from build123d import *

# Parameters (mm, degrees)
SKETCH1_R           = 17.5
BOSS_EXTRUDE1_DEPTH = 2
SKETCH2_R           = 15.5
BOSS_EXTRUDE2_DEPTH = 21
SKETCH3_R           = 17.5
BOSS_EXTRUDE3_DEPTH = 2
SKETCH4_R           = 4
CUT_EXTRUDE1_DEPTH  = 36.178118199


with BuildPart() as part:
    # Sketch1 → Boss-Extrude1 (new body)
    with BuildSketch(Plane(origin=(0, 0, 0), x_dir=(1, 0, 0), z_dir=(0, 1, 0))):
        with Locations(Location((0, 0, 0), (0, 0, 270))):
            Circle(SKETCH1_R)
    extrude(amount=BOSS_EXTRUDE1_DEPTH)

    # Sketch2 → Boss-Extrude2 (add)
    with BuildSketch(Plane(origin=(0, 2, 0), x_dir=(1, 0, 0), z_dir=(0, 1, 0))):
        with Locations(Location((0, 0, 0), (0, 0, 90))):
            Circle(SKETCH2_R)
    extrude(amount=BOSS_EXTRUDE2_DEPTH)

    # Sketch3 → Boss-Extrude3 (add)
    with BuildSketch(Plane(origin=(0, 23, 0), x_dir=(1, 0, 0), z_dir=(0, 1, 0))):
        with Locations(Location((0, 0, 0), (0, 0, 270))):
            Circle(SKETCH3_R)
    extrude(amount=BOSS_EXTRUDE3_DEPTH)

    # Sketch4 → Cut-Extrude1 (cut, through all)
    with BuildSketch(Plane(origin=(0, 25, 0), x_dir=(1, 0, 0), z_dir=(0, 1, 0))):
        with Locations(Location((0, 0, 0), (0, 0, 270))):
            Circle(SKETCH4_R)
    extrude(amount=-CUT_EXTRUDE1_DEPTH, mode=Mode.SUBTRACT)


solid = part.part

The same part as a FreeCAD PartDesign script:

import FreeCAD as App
import Part
import Sketcher

V = App.Vector

doc = App.newDocument("Part")
body = doc.addObject("PartDesign::Body", "Body")

# Sketch on XZ plane
sketch1 = body.newObject("Sketcher::SketchObject", "Sketch")
sketch1.AttachmentSupport = (doc.getObject("XZ_Plane"), [""])
sketch1.MapMode = "FlatFace"
sketch1.addGeometry(Part.Circle(V(0, 0, 0), V(0, 0, 1), 18), False)
sketch1.addConstraint([
    Sketcher.Constraint("Coincident", 0, 3, -1, 1),
    Sketcher.Constraint("Diameter", 0, 35.0),
])
pad1 = body.newObject("PartDesign::Pad", "Pad")
pad1.Profile = sketch1
pad1.Length = 2
pad1.Reversed = True

# Sketch on XZ plane
sketch2 = body.newObject("Sketcher::SketchObject", "Sketch001")
sketch2.AttachmentSupport = (doc.getObject("XZ_Plane"), [""])
sketch2.MapMode = "FlatFace"
sketch2.AttachmentOffset = App.Placement(V(0, 0, -2), App.Rotation())
sketch2.addGeometry(Part.Circle(V(0, 0, 0), V(0, 0, 1), 16), False)
sketch2.addConstraint([
    Sketcher.Constraint("Coincident", 0, 3, -1, 1),
    Sketcher.Constraint("Diameter", 0, 31.0),
])
pad2 = body.newObject("PartDesign::Pad", "Pad001")
pad2.Profile = sketch2
pad2.Length = 21
pad2.Reversed = True

# Sketch on XZ plane
sketch3 = body.newObject("Sketcher::SketchObject", "Sketch002")
sketch3.AttachmentSupport = (doc.getObject("XZ_Plane"), [""])
sketch3.MapMode = "FlatFace"
sketch3.AttachmentOffset = App.Placement(V(0, 0, -23), App.Rotation())
sketch3.addGeometry(Part.Circle(V(0, 0, 0), V(0, 0, 1), 18), False)
sketch3.addConstraint([
    Sketcher.Constraint("Coincident", 0, 3, -1, 1),
    Sketcher.Constraint("Diameter", 0, 35.0),
])
pad3 = body.newObject("PartDesign::Pad", "Pad002")
pad3.Profile = sketch3
pad3.Length = 2
pad3.Reversed = True

# Sketch on XZ plane
sketch4 = body.newObject("Sketcher::SketchObject", "Sketch003")
sketch4.AttachmentSupport = (doc.getObject("XZ_Plane"), [""])
sketch4.MapMode = "FlatFace"
sketch4.AttachmentOffset = App.Placement(V(0, 0, -25), App.Rotation())
sketch4.addGeometry(Part.Circle(V(0, 0, 0), V(0, 0, 1), 4), False)
sketch4.addConstraint([
    Sketcher.Constraint("Coincident", 0, 3, -1, 1),
    Sketcher.Constraint("Diameter", 0, 8.0),
])
pocket1 = body.newObject("PartDesign::Pocket", "Pocket")
pocket1.Profile = sketch4
pocket1.Type = "ThroughAll"
pocket1.Reversed = True

doc.recompute()
